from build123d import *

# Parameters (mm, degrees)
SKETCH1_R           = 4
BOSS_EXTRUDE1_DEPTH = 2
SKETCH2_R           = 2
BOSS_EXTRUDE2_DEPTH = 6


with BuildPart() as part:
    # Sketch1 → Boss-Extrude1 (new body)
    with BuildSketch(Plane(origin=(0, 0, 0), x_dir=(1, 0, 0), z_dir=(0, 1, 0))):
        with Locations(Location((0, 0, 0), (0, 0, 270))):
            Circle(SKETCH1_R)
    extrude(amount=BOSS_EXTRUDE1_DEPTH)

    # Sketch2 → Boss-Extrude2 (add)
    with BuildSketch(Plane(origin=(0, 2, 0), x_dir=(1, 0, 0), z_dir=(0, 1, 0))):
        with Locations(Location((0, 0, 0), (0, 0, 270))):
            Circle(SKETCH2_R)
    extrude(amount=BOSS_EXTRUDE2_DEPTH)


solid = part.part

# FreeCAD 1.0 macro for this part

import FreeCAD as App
import Part
import Sketcher
Q = App.Units.Quantity

doc = App.newDocument("Part")
body = doc.addObject("PartDesign::Body", "Body")

sketch1 = doc.addObject("Sketcher::SketchObject", "Sketch")
body.addObject(sketch1)
sketch1.AttachmentSupport = (doc.XZ_Plane, [""])
sketch1.MapMode = "FlatFace"
sketch1.addGeometry(Part.Circle(App.Vector(0, 0, 0), App.Vector(0, 0, 1), 4), False)
sketch1.addConstraint([
    Sketcher.Constraint("Coincident", 0, 3, -1, 1),
    Sketcher.Constraint("Diameter", 0, Q("8 mm")),
])
pad1 = doc.addObject("PartDesign::Pad", "Pad")
body.addObject(pad1)
pad1.Profile = sketch1
pad1.Length = 2
pad1.Reversed = True

sketch2 = doc.addObject("Sketcher::SketchObject", "Sketch001")
body.addObject(sketch2)
sketch2.AttachmentSupport = (doc.XZ_Plane, [""])
sketch2.MapMode = "FlatFace"
sketch2.AttachmentOffset = App.Placement(App.Vector(0, 0, -2), App.Rotation())
sketch2.addGeometry(Part.Circle(App.Vector(0, 0, 0), App.Vector(0, 0, 1), 2), False)
sketch2.addConstraint([
    Sketcher.Constraint("Coincident", 0, 3, -1, 1),
    Sketcher.Constraint("Diameter", 0, Q("4 mm")),
])
pad2 = doc.addObject("PartDesign::Pad", "Pad001")
body.addObject(pad2)
pad2.Profile = sketch2
pad2.Length = 6
pad2.Reversed = True

doc.recompute()
